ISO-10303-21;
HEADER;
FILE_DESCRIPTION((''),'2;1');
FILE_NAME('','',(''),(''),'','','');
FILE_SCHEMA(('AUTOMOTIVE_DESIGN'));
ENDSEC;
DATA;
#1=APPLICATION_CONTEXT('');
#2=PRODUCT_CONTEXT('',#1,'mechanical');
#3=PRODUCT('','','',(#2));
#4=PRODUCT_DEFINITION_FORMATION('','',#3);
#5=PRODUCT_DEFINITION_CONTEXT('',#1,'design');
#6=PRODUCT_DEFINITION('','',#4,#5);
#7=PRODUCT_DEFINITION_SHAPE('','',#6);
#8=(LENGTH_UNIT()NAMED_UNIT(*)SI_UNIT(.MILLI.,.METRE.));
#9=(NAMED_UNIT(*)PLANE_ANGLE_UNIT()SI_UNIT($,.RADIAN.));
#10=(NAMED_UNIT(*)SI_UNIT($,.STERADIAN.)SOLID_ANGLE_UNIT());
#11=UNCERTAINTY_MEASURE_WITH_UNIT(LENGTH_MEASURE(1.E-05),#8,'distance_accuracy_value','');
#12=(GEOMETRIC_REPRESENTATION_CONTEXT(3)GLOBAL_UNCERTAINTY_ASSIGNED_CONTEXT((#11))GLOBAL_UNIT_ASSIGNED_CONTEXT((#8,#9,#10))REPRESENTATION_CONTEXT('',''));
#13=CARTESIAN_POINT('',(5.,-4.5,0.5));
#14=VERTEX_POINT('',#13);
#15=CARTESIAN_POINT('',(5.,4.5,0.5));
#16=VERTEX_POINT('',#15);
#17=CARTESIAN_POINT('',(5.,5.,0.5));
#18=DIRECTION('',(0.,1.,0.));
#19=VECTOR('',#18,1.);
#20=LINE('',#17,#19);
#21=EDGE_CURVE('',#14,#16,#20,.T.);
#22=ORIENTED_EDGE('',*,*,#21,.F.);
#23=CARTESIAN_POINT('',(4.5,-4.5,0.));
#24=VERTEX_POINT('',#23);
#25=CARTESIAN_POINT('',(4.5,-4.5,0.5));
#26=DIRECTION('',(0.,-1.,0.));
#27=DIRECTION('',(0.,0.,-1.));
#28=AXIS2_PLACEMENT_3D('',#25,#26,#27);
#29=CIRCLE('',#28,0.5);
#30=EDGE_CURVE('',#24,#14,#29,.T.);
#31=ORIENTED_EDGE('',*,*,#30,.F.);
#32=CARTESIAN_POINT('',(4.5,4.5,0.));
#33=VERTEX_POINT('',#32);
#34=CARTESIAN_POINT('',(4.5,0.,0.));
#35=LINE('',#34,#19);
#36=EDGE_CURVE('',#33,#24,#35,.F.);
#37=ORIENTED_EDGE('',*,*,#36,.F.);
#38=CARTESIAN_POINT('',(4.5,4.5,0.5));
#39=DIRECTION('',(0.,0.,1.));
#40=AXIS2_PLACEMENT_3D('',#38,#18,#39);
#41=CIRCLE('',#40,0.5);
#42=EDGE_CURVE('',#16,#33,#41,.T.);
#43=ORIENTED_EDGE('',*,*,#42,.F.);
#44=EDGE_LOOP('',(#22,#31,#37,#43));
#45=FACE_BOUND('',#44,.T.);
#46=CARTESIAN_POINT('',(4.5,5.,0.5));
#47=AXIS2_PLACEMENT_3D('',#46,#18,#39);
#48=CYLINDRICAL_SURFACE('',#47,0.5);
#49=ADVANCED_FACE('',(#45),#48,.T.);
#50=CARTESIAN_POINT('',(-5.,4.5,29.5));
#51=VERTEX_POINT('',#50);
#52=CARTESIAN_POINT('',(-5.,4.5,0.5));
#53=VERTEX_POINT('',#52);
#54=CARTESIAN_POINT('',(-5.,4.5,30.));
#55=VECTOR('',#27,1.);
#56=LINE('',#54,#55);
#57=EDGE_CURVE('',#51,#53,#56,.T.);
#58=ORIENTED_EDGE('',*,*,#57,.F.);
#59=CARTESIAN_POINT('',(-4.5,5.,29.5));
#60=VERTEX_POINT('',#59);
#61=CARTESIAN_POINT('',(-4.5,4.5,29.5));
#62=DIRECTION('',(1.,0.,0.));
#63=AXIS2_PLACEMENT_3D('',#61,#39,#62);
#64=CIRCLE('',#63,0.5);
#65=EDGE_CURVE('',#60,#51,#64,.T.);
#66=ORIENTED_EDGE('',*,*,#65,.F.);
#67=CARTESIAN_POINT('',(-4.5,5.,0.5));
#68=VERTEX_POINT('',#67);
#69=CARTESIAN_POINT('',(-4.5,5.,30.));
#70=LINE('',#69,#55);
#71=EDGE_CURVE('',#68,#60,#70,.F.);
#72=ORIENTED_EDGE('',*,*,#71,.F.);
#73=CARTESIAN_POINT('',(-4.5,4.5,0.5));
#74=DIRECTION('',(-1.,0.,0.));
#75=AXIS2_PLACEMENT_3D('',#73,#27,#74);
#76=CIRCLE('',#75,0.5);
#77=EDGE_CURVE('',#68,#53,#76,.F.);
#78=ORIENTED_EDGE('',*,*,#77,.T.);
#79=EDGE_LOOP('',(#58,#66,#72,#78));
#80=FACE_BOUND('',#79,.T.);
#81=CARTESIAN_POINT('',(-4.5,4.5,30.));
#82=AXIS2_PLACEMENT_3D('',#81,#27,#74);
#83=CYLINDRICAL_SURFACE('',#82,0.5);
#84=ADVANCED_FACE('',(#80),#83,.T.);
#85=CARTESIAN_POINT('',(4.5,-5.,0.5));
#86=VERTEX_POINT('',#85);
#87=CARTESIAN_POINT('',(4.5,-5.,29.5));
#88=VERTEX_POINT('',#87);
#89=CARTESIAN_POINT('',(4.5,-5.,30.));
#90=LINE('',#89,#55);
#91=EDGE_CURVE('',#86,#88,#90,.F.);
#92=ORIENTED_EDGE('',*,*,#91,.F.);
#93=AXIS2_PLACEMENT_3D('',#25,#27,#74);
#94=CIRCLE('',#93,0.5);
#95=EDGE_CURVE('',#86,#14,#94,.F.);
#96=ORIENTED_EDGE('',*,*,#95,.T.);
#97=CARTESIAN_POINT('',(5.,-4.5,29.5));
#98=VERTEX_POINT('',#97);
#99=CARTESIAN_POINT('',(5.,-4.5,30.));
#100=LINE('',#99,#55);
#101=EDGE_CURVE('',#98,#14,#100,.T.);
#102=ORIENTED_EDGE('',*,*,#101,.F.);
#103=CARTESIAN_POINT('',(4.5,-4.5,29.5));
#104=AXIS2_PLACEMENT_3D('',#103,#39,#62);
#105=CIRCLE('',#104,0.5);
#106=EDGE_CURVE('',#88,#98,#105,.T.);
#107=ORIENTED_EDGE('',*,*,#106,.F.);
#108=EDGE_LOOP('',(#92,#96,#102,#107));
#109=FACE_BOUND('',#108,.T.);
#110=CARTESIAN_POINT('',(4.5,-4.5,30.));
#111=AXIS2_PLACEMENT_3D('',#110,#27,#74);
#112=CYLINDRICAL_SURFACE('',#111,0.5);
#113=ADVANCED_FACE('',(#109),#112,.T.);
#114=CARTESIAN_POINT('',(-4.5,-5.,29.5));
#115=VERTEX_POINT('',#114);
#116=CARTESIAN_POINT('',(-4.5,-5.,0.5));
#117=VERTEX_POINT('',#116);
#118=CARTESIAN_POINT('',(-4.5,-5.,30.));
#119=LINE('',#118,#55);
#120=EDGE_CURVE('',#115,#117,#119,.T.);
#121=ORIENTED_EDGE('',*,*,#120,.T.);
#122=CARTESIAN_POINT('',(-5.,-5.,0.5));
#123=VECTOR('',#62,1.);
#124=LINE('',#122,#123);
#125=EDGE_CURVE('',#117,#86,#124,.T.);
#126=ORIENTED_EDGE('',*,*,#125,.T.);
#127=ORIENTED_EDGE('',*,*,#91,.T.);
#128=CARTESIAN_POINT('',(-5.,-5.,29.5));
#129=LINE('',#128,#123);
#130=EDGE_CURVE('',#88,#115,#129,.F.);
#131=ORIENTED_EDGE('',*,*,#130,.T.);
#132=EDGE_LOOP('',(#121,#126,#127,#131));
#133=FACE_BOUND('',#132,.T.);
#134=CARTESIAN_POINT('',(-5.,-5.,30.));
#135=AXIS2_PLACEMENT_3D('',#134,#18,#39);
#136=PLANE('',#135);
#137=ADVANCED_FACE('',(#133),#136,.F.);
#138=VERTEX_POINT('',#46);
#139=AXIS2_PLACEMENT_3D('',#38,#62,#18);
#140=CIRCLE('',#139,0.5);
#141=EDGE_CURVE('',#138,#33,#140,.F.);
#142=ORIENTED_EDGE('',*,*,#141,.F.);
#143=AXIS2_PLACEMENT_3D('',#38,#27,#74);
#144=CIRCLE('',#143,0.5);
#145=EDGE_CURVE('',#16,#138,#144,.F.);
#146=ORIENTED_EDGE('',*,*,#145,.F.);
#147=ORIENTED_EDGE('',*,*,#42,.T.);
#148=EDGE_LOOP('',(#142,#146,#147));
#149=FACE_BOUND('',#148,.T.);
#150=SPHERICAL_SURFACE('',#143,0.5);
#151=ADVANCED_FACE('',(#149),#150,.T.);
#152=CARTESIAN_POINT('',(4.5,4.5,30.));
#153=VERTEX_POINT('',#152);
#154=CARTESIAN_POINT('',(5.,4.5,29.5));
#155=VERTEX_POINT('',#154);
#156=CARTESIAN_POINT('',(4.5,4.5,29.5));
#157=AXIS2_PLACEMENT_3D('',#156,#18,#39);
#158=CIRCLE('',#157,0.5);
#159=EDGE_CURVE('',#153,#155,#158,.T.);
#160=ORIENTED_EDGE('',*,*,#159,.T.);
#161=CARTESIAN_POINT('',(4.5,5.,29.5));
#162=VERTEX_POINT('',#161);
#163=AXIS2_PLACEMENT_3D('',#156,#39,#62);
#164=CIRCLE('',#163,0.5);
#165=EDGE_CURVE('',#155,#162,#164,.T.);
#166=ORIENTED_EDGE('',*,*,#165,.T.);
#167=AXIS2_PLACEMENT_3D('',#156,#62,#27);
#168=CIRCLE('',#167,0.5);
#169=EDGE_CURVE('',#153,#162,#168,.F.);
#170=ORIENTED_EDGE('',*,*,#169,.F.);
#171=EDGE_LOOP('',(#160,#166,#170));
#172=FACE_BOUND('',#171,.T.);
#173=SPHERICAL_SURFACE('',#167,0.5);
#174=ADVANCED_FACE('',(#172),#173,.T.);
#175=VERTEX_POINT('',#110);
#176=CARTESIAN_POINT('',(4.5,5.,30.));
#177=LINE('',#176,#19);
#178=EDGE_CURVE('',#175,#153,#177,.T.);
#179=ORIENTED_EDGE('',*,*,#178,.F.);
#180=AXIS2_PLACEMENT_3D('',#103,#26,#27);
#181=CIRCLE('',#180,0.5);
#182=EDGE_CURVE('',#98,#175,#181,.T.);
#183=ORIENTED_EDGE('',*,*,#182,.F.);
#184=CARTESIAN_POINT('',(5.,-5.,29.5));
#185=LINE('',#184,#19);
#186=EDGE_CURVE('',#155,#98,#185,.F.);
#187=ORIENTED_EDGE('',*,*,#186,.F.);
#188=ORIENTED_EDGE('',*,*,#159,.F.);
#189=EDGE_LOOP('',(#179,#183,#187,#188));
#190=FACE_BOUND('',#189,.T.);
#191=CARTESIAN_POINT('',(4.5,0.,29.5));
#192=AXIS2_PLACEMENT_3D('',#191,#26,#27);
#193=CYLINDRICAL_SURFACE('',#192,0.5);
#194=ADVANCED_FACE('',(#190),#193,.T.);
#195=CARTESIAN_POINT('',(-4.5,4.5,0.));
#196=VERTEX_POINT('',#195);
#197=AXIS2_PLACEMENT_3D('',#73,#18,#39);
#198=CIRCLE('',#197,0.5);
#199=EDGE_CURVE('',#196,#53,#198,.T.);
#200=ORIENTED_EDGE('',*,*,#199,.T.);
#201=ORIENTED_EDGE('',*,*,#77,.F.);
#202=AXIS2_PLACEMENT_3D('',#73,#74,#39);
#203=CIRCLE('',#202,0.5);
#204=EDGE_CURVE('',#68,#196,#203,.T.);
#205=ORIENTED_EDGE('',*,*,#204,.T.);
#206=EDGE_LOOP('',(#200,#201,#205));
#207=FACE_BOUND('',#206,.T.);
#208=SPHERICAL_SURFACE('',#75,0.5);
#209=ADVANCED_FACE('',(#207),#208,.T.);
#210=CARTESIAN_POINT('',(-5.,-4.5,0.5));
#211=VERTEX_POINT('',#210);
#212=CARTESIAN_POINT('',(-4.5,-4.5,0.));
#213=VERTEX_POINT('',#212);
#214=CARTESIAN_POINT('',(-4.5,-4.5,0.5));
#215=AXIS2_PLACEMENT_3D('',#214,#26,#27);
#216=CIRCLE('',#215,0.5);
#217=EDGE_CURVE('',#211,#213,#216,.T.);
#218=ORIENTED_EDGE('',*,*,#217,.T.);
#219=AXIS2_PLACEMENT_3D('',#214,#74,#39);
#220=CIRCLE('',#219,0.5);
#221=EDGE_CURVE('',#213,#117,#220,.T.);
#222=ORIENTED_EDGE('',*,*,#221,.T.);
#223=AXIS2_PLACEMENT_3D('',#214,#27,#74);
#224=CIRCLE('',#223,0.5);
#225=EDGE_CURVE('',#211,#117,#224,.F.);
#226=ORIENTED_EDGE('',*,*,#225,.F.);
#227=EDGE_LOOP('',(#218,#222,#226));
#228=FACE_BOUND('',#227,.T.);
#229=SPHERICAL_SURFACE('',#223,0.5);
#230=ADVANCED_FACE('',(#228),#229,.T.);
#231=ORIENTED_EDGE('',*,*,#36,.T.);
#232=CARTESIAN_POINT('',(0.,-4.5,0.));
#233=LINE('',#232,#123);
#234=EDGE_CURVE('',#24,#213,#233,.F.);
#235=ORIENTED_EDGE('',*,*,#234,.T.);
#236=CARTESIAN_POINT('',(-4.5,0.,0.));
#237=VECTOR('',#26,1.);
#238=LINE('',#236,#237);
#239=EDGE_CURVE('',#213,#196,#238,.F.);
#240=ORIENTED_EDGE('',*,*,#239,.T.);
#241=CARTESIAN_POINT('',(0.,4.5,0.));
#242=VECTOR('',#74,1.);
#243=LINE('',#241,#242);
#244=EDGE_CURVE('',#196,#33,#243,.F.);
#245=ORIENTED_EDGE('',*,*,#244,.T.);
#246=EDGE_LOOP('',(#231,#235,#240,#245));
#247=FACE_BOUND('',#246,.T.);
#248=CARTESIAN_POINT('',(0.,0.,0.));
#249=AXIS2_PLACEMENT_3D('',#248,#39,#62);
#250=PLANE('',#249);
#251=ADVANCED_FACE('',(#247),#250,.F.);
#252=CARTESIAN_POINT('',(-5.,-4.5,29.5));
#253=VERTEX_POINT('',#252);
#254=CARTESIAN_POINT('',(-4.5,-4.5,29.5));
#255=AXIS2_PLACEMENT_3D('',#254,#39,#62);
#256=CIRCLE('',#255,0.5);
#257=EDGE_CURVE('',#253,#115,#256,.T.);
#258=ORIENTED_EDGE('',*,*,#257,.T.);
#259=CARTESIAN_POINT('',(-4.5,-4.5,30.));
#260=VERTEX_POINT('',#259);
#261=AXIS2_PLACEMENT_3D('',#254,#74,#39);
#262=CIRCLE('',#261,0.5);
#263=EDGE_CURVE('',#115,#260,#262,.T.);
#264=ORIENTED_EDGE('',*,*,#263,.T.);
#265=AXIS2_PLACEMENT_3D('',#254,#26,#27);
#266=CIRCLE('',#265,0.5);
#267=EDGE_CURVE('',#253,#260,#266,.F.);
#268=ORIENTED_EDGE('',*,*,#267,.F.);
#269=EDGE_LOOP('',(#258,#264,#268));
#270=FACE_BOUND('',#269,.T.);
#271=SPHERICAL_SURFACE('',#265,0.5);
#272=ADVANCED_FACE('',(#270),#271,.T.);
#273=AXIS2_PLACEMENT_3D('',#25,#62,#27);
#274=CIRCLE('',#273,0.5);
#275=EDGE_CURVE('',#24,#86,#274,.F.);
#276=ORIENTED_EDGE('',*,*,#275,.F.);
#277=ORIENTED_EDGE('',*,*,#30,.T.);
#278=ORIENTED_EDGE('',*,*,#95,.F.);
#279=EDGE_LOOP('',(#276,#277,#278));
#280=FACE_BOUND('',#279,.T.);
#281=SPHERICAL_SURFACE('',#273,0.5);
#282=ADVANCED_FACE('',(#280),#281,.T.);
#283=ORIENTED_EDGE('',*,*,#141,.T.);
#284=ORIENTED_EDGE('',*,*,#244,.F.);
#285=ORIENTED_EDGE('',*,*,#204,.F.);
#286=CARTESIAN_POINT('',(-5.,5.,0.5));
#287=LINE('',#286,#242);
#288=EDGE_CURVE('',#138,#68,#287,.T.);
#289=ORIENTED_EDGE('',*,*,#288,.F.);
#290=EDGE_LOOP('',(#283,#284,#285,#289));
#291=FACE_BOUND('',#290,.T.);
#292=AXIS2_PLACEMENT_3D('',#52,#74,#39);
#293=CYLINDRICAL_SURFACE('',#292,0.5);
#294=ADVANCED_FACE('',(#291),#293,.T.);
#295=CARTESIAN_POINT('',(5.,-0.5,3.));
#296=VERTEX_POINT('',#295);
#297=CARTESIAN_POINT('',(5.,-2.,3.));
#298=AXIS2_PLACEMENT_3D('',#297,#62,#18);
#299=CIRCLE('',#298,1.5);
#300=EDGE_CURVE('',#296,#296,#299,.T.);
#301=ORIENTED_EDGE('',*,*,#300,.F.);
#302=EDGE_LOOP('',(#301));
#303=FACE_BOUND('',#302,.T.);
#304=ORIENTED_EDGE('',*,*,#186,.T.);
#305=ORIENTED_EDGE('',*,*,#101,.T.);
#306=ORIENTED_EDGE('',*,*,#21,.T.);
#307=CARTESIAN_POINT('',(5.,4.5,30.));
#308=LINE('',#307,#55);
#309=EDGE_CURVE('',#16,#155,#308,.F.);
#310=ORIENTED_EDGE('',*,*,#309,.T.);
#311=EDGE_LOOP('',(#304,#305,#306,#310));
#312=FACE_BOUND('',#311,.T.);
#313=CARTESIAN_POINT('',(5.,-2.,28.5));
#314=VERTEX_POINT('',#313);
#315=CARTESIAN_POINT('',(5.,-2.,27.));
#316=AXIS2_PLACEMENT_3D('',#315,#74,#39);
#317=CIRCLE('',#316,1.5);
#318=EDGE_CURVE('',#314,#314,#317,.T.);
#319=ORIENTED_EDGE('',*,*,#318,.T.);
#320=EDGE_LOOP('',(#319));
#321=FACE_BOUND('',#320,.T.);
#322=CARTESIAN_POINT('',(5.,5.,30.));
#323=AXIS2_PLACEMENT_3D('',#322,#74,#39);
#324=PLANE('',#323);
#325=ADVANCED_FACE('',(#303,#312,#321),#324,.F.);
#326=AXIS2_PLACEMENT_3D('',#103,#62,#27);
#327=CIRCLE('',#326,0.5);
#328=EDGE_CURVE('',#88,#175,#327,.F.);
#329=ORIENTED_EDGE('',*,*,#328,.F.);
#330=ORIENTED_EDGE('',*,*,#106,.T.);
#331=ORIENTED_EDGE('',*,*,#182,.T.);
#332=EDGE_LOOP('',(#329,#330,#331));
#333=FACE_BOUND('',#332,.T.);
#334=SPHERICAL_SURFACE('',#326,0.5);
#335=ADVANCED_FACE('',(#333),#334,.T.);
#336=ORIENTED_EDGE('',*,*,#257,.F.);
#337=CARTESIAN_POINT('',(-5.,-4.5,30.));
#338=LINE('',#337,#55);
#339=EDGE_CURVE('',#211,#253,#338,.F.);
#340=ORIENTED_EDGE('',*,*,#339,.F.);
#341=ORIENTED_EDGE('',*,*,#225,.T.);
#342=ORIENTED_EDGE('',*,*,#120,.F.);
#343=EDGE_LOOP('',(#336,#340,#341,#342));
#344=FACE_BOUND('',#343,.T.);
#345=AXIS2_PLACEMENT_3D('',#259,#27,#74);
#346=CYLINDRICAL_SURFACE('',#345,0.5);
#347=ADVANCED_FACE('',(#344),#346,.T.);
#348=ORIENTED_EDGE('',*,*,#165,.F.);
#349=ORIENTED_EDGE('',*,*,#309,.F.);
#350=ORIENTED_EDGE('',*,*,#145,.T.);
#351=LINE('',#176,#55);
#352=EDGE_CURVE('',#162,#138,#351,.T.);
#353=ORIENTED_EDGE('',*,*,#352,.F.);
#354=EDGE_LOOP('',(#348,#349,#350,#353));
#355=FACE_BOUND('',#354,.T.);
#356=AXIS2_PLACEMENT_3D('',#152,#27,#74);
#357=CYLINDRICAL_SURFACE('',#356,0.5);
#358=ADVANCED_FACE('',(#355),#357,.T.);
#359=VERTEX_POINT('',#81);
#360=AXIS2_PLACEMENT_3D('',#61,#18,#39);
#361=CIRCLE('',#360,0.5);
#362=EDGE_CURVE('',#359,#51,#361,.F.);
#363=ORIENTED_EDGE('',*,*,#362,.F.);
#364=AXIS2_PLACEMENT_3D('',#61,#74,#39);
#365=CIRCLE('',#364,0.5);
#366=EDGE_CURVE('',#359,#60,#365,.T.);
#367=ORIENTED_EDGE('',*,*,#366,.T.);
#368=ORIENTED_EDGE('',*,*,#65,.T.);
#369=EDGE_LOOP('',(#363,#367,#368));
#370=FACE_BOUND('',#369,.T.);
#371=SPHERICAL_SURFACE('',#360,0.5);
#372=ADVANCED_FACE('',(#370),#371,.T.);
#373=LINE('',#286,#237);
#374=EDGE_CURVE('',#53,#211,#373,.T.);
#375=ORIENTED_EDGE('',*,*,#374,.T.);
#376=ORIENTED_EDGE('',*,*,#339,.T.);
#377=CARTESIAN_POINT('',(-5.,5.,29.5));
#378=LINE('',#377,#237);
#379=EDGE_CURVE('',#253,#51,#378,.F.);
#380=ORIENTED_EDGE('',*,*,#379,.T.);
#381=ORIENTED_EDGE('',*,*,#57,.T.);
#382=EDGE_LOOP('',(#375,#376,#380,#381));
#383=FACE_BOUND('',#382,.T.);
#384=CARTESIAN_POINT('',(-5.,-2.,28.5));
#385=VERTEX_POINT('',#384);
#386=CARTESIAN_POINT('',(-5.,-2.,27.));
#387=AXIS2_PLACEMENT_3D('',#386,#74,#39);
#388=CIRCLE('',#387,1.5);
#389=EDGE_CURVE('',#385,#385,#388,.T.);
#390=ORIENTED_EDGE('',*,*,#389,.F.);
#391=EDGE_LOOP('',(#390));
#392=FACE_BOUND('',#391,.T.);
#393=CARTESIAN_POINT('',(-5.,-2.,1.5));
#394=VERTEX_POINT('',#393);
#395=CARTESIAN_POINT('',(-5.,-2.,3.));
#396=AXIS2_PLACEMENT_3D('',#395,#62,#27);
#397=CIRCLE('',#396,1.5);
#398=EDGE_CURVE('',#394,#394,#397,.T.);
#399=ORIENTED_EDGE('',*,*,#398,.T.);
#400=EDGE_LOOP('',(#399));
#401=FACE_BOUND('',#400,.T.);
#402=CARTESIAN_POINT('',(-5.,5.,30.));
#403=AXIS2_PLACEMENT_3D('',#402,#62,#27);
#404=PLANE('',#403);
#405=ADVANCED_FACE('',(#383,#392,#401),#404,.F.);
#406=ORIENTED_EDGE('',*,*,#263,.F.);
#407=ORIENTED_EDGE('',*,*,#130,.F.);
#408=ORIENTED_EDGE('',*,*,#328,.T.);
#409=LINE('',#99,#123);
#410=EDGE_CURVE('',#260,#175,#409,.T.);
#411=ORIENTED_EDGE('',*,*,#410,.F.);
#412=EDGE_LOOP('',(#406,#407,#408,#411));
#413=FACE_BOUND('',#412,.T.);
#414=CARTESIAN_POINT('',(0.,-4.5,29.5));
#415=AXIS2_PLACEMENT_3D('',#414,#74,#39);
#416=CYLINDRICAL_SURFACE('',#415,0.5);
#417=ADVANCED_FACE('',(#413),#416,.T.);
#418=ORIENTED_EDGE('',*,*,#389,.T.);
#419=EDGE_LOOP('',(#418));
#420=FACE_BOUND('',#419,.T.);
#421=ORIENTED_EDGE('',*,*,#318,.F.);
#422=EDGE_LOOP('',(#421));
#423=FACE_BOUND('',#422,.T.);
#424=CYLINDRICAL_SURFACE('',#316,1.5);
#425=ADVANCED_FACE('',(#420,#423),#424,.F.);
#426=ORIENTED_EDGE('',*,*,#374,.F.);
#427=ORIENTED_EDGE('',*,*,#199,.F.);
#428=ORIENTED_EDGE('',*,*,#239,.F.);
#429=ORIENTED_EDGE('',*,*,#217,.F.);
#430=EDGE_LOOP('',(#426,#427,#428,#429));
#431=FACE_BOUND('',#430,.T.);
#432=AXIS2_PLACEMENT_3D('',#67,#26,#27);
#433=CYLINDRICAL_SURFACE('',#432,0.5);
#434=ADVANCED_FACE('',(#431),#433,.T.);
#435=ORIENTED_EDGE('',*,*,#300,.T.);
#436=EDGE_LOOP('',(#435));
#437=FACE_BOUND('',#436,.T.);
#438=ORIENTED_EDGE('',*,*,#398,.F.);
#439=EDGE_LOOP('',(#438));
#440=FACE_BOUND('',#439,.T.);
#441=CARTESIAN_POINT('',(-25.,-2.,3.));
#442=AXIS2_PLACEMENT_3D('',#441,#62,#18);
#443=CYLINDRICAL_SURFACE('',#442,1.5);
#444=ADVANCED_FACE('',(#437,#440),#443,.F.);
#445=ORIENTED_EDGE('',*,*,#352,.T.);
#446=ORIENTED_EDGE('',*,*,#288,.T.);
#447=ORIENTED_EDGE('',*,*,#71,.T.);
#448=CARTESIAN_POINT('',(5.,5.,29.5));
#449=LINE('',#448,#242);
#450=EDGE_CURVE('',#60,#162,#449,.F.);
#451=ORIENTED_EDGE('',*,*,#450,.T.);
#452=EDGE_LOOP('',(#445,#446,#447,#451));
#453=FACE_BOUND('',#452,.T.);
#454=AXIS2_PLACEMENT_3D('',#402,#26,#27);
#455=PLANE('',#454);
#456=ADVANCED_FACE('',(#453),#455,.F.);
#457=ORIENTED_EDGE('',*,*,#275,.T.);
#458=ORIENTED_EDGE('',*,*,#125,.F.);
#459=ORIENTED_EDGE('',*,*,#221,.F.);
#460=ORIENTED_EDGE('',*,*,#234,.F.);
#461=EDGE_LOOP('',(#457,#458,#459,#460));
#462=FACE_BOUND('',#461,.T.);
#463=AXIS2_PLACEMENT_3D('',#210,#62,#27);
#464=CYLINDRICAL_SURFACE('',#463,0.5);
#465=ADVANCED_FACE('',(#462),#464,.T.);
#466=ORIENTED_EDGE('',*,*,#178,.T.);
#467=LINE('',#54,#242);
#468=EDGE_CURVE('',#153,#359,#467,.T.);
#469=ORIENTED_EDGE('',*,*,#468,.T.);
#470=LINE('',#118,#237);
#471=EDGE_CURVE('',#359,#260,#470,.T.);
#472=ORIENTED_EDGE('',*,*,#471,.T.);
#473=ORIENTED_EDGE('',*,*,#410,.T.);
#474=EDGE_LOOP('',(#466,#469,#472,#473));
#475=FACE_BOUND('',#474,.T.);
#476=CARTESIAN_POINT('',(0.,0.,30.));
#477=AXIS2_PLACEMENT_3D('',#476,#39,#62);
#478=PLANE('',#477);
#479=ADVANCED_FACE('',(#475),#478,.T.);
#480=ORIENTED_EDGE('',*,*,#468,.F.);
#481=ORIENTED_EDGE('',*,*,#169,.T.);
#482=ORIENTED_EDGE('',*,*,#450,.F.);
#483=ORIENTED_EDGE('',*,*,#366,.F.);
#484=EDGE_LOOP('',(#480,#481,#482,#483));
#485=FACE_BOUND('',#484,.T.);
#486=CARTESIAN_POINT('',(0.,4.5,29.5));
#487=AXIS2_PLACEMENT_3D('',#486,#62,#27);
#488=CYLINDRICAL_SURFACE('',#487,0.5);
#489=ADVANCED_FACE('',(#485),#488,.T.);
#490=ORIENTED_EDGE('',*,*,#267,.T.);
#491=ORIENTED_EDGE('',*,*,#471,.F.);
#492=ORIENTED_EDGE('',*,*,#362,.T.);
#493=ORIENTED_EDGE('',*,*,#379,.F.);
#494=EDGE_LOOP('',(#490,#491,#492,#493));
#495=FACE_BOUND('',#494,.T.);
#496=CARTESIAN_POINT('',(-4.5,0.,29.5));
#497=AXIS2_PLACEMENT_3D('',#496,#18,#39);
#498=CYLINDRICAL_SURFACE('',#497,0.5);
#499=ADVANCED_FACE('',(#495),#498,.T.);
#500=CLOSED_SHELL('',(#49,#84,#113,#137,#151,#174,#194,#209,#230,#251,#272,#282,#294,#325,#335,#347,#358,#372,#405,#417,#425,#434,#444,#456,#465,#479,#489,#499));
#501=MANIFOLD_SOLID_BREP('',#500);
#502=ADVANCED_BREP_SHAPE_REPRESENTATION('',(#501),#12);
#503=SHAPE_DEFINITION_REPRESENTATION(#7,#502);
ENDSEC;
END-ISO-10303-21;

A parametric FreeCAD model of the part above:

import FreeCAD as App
import Part
import Sketcher


def edges_at(feature, points):
    """Names of the edges that pass closest to the given points."""
    edges = feature.Shape.Edges
    near = lambda p: min(range(len(edges)), key=lambda i: edges[i].distToShape(Part.Vertex(*p))[0])
    return sorted({f"Edge{near(p) + 1}" for p in points})


def add_polygon(sketch, points):
    """Adds a closed chain of lines whose ends are joined by coincident constraints."""
    first, n = sketch.GeometryCount, len(points)
    for a, b in zip(points, points[1:] + points[:1]):
        sketch.addGeometry(Part.LineSegment(App.Vector(*a, 0), App.Vector(*b, 0)), False)
    for i in range(n):
        sketch.addConstraint(Sketcher.Constraint("Coincident", first + i, 2, first + (i + 1) % n, 1))

doc = App.newDocument("Part")
body = doc.addObject("PartDesign::Body", "Body")

sketch1 = body.newObject("Sketcher::SketchObject", "Sketch")
sketch1.AttachmentSupport = (doc.getObject("XY_Plane"), [""])
sketch1.MapMode = "FlatFace"
add_polygon(sketch1, [(-5, 5), (-5, -5), (5, -5), (5, 5)])
sketch1.addConstraint(Sketcher.Constraint("Vertical", 0))
sketch1.addConstraint(Sketcher.Constraint("Horizontal", 1))
sketch1.addConstraint(Sketcher.Constraint("Vertical", 2))
sketch1.addConstraint(Sketcher.Constraint("Horizontal", 3))
sketch1.addConstraint(Sketcher.Constraint("Symmetric", 0, 2, 2, 2, -1, 1))
sketch1.addConstraint(Sketcher.Constraint("Equal", 3, 0))
sketch1.addConstraint(Sketcher.Constraint("DistanceX", 1, 1, 1, 2, 10.0))
pad1 = body.newObject("PartDesign::Pad", "Pad")
pad1.Profile = sketch1
pad1.Length = 30

sketch2 = body.newObject("Sketcher::SketchObject", "Sketch001")
sketch2.AttachmentSupport = (doc.getObject("YZ_Plane"), [""])
sketch2.MapMode = "FlatFace"
sketch2.AttachmentOffset = App.Placement(App.Vector(0, 0, 5), App.Rotation())
sketch2.addGeometry(Part.Circle(App.Vector(-2, 3, 0), App.Vector(0, 0, 1), 1.5), False)
sketch2.addConstraint(Sketcher.Constraint("Diameter", 0, 3.0))
sketch2.addConstraint(Sketcher.Constraint("DistanceX", 0, 3, -1, 1, 2.0))
sketch2.addConstraint(Sketcher.Constraint("DistanceY", -1, 1, 0, 3, 3.0))
pocket1 = body.newObject("PartDesign::Pocket", "Pocket")
pocket1.Profile = sketch2
pocket1.Length = 30
doc.recompute()

fillet = body.newObject("PartDesign::Fillet", "Fillet")
fillet.Base = (pocket1, edges_at(pocket1, [
    (-5, 0, 30),
    (0, -5, 30),
    (5, 0, 30),
    (0, -5, 0),
    (-5, 0, 0),
    (0, 5, 0),
    (5, 0, 0),
    (5, -5, 15),
    (-5, -5, 15),
    (-5, 5, 15),
    (5, 5, 15),
    (0, 5, 30),
]))
fillet.Radius = 0.5

sketch3 = body.newObject("Sketcher::SketchObject", "Sketch002")
sketch3.AttachmentSupport = (doc.getObject("YZ_Plane"), [""])
sketch3.MapMode = "FlatFace"
sketch3.AttachmentOffset = App.Placement(App.Vector(0, 0, -5), App.Rotation())
sketch3.addGeometry(Part.Circle(App.Vector(-2, 27, 0), App.Vector(0, 0, 1), 1.5), False)
sketch3.addConstraint(Sketcher.Constraint("Diameter", 0, 3.0))
sketch3.addConstraint(Sketcher.Constraint("DistanceX", 0, 3, -1, 1, 2.0))
sketch3.addConstraint(Sketcher.Constraint("DistanceY", -1, 1, 0, 3, 27.0))
pocket2 = body.newObject("PartDesign::Pocket", "Pocket001")
pocket2.Profile = sketch3
pocket2.Length = 10
pocket2.Reversed = True

doc.recompute()
